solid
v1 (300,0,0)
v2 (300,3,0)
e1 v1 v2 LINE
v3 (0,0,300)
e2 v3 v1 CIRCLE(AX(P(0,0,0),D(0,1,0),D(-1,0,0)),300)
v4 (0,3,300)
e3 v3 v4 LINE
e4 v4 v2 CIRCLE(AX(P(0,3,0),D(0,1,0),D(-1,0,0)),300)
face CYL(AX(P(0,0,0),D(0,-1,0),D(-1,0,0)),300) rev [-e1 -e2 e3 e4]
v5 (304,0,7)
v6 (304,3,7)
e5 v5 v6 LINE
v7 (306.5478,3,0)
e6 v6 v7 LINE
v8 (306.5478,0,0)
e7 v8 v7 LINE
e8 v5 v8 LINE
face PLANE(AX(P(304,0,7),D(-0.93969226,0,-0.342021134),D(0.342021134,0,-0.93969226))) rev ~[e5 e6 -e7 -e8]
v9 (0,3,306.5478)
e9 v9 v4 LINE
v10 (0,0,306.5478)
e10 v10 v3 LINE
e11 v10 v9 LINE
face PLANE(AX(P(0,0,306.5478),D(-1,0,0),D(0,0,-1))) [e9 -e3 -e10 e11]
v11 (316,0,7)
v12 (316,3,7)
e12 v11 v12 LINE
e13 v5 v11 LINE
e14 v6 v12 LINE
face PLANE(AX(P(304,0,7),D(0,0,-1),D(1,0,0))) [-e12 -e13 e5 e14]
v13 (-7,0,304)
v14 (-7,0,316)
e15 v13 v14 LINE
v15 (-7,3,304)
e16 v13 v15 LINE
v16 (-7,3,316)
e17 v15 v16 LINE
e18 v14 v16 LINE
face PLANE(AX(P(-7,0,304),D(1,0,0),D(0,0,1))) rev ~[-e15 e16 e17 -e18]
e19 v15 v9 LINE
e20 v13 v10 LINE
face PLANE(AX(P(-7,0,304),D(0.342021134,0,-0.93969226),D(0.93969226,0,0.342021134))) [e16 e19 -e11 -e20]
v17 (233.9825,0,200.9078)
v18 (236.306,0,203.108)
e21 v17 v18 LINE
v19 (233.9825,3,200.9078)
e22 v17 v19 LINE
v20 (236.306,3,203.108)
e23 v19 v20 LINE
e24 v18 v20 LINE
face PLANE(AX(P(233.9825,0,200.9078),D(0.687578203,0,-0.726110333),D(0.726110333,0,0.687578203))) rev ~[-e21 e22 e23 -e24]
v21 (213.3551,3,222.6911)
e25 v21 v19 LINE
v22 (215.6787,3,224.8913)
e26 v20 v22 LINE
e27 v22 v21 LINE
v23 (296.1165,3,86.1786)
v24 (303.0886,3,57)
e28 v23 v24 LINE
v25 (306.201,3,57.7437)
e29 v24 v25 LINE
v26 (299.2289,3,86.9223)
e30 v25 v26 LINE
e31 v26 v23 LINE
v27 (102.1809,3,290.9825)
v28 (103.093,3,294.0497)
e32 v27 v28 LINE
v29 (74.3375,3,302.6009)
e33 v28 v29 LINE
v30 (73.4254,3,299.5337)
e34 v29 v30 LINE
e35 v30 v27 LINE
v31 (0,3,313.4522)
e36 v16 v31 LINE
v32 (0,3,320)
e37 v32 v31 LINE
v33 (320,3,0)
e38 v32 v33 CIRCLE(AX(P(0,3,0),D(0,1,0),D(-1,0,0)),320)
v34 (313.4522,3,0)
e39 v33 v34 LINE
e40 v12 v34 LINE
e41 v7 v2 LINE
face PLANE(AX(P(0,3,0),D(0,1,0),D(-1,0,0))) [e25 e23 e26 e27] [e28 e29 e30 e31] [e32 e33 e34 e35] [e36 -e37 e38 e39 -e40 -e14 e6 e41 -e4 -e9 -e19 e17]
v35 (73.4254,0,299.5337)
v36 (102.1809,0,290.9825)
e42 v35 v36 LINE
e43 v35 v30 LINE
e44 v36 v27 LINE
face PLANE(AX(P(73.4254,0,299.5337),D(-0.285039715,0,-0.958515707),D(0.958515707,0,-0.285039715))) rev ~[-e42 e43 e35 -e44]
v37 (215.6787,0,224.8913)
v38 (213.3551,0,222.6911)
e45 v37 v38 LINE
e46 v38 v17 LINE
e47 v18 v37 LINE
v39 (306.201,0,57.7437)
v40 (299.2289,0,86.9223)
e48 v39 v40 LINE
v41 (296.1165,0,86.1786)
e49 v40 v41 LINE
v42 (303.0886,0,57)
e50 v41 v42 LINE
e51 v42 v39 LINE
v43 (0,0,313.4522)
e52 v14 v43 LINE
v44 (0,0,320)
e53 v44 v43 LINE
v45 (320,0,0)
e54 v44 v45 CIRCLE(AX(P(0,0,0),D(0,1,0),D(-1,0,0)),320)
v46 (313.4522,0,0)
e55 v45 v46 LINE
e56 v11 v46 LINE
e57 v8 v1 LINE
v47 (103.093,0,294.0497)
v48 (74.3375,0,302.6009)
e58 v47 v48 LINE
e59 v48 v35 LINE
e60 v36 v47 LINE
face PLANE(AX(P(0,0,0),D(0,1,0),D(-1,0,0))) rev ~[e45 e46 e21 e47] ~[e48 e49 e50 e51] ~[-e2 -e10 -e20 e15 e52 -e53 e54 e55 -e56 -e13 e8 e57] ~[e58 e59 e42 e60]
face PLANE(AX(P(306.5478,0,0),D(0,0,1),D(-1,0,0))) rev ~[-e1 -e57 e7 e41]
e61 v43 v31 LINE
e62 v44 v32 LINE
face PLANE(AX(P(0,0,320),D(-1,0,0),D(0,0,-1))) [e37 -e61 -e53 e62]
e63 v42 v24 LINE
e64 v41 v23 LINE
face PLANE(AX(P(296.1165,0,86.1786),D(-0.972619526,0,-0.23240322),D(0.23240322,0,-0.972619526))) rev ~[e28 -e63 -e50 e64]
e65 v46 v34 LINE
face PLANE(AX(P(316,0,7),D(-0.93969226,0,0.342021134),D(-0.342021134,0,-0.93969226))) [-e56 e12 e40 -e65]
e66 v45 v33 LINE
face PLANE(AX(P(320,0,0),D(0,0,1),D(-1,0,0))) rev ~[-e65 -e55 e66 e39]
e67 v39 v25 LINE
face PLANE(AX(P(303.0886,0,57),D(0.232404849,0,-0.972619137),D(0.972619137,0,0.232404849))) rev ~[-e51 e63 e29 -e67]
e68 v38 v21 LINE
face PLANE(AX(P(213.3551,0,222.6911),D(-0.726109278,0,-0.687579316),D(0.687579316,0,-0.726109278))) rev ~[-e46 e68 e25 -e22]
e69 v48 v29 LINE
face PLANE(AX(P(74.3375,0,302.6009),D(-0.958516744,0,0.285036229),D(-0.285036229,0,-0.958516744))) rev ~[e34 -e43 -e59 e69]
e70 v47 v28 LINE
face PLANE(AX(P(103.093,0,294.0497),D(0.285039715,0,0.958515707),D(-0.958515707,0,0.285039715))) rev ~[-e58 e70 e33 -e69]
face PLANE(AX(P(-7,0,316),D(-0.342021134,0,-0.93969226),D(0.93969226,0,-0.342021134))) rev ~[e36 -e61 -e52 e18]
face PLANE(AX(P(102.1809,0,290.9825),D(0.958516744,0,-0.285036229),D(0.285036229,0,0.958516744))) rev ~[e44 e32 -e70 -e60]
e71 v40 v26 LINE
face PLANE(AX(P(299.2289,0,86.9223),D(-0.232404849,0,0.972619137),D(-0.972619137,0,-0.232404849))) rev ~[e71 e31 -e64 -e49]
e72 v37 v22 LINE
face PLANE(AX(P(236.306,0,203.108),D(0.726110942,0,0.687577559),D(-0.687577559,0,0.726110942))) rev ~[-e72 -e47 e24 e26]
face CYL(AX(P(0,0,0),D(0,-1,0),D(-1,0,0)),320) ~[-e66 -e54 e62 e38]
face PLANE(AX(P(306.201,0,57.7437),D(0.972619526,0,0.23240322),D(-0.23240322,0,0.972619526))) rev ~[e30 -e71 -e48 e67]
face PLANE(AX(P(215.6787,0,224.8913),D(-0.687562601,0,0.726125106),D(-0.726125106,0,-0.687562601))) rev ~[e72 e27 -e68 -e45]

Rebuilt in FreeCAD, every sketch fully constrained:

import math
import FreeCAD as App
import Part
import Sketcher

V = App.Vector
Q = App.Units.Quantity

doc = App.newDocument("Part")
body = doc.addObject("PartDesign::Body", "Body")

sketch1 = body.newObject("Sketcher::SketchObject", "Sketch")
sketch1.AttachmentSupport = (doc.getObject("XZ_Plane"), [""])
sketch1.MapMode = "FlatFace"
sketch1.addGeometry([
    Part.ArcOfCircle(Part.Circle(V(0, 0, 0), V(0, 0, 1), 300), math.radians(0), math.radians(90)),
    Part.LineSegment(V(0, 300, 0), V(0, 306.5478, 0)),
    Part.LineSegment(V(0, 306.5478, 0), V(-7, 304, 0)),
    Part.LineSegment(V(-7, 304, 0), V(-7, 316, 0)),
    Part.LineSegment(V(-7, 316, 0), V(0, 313.4522, 0)),
    Part.LineSegment(V(0, 313.4522, 0), V(0, 320, 0)),
    Part.ArcOfCircle(Part.Circle(V(0, 0, 0), V(0, 0, 1), 320), math.radians(0), math.radians(90)),
    Part.LineSegment(V(320, 0, 0), V(313.4522, 0, 0)),
    Part.LineSegment(V(313.4522, 0, 0), V(316, 7, 0)),
    Part.LineSegment(V(316, 7, 0), V(304, 7, 0)),
    Part.LineSegment(V(304, 7, 0), V(306.5478, 0, 0)),
    Part.LineSegment(V(306.5478, 0, 0), V(300, 0, 0)),
    Part.LineSegment(V(303.0886, 57, 0), V(306.201, 57.7437, 0)),
    Part.LineSegment(V(306.201, 57.7437, 0), V(299.2289, 86.9223, 0)),
    Part.LineSegment(V(299.2289, 86.9223, 0), V(296.1165, 86.1786, 0)),
    Part.LineSegment(V(296.1165, 86.1786, 0), V(303.0886, 57, 0)),
    Part.LineSegment(V(233.9825, 200.9078, 0), V(236.306, 203.108, 0)),
    Part.LineSegment(V(236.306, 203.108, 0), V(215.6787, 224.8913, 0)),
    Part.LineSegment(V(215.6787, 224.8913, 0), V(213.3551, 222.6911, 0)),
    Part.LineSegment(V(213.3551, 222.6911, 0), V(233.9825, 200.9078, 0)),
    Part.LineSegment(V(102.1809, 290.9825, 0), V(103.093, 294.0497, 0)),
    Part.LineSegment(V(103.093, 294.0497, 0), V(74.3375, 302.6009, 0)),
    Part.LineSegment(V(74.3375, 302.6009, 0), V(73.4254, 299.5337, 0)),
    Part.LineSegment(V(73.4254, 299.5337, 0), V(102.1809, 290.9825, 0)),
], False)
sketch1.addConstraint([
    Sketcher.Constraint("Coincident", 0, 2, 1, 1),
    Sketcher.Constraint("Coincident", 1, 2, 2, 1),
    Sketcher.Constraint("Coincident", 2, 2, 3, 1),
    Sketcher.Constraint("Coincident", 3, 2, 4, 1),
    Sketcher.Constraint("Coincident", 4, 2, 5, 1),
    Sketcher.Constraint("Coincident", 5, 2, 6, 2),
    Sketcher.Constraint("Coincident", 6, 1, 7, 1),
    Sketcher.Constraint("Coincident", 7, 2, 8, 1),
    Sketcher.Constraint("Coincident", 8, 2, 9, 1),
    Sketcher.Constraint("Coincident", 9, 2, 10, 1),
    Sketcher.Constraint("Coincident", 10, 2, 11, 1),
    Sketcher.Constraint("Coincident", 11, 2, 0, 1),
    Sketcher.Constraint("Coincident", 12, 2, 13, 1),
    Sketcher.Constraint("Coincident", 13, 2, 14, 1),
    Sketcher.Constraint("Coincident", 14, 2, 15, 1),
    Sketcher.Constraint("Coincident", 15, 2, 12, 1),
    Sketcher.Constraint("Coincident", 16, 2, 17, 1),
    Sketcher.Constraint("Coincident", 17, 2, 18, 1),
    Sketcher.Constraint("Coincident", 18, 2, 19, 1),
    Sketcher.Constraint("Coincident", 19, 2, 16, 1),
    Sketcher.Constraint("Coincident", 20, 2, 21, 1),
    Sketcher.Constraint("Coincident", 21, 2, 22, 1),
    Sketcher.Constraint("Coincident", 22, 2, 23, 1),
    Sketcher.Constraint("Coincident", 23, 2, 20, 1),
    Sketcher.Constraint("Vertical", 1),
    Sketcher.Constraint("Vertical", 3),
    Sketcher.Constraint("Vertical", 5),
    Sketcher.Constraint("Horizontal", 7),
    Sketcher.Constraint("Horizontal", 9),
    Sketcher.Constraint("Horizontal", 11),
    Sketcher.Constraint("Coincident", 0, 3, -1, 1),
    Sketcher.Constraint("Coincident", 6, 3, -1, 1),
    Sketcher.Constraint("PointOnObject", 1, 2, -2),
    Sketcher.Constraint("PointOnObject", 4, 2, -2),
    Sketcher.Constraint("PointOnObject", 7, 2, -1),
    Sketcher.Constraint("PointOnObject", 10, 2, -1),
    Sketcher.Constraint("Perpendicular", 4, 8),
    Sketcher.Constraint("Perpendicular", 2, 10),
    Sketcher.Constraint("Perpendicular", 12, 13),
    Sketcher.Constraint("Perpendicular", 13, 14),
    Sketcher.Constraint("Perpendicular", 14, 15),
    Sketcher.Constraint("Perpendicular", 16, 17),
    Sketcher.Constraint("Perpendicular", 17, 18),
    Sketcher.Constraint("Perpendicular", 18, 19),
    Sketcher.Constraint("Perpendicular", 20, 21),
    Sketcher.Constraint("Perpendicular", 21, 22),
    Sketcher.Constraint("Perpendicular", 22, 23),
    Sketcher.Constraint("Equal", 7, 11),
    Sketcher.Constraint("Equal", 11, 1),
    Sketcher.Constraint("Equal", 9, 3),
    Sketcher.Constraint("Equal", 1, 5),
    Sketcher.Constraint("Equal", 2, 4),
    Sketcher.Constraint("Equal", 14, 16),
    Sketcher.Constraint("Equal", 15, 17),
    Sketcher.Constraint("Equal", 18, 20),
    Sketcher.Constraint("Equal", 19, 21),
    Sketcher.Constraint("Radius", 0, 300.0),
    Sketcher.Constraint("Radius", 6, 320.0),
    Sketcher.Constraint("DistanceX", 9, 2, 9, 1, 12.0),
    Sketcher.Constraint("Angle", 8, Q("70 deg")),
    Sketcher.Constraint("Distance", 13, 30.0),
    Sketcher.Constraint("DistanceX", 2, 2, -1, 1, 7.0),
    Sketcher.Constraint("DistanceY", 9, 2, 15, 2, 50.0),
    Sketcher.Constraint("Distance", 12, 3.2),
    Sketcher.Constraint("Angle", 20, Q("73.439 deg")),
    Sketcher.Constraint("DistanceX", 17, 2, 15, 2, 87.41),
    Sketcher.Constraint("DistanceX", -1, 1, 12, 2, 306.201),
    Sketcher.Constraint("DistanceX", -1, 1, 13, 2, 299.229),
    Sketcher.Constraint("DistanceX", -1, 1, 16, 2, 236.306),
    Sketcher.Constraint("DistanceY", -1, 1, 16, 2, 203.108),
    Sketcher.Constraint("DistanceX", -1, 1, 20, 2, 103.093),
    Sketcher.Constraint("DistanceY", -1, 1, 21, 2, 302.601),
])
pad1 = body.newObject("PartDesign::Pad", "Pad")
pad1.Profile = sketch1
pad1.Length = 3
pad1.Reversed = True

doc.recompute()
